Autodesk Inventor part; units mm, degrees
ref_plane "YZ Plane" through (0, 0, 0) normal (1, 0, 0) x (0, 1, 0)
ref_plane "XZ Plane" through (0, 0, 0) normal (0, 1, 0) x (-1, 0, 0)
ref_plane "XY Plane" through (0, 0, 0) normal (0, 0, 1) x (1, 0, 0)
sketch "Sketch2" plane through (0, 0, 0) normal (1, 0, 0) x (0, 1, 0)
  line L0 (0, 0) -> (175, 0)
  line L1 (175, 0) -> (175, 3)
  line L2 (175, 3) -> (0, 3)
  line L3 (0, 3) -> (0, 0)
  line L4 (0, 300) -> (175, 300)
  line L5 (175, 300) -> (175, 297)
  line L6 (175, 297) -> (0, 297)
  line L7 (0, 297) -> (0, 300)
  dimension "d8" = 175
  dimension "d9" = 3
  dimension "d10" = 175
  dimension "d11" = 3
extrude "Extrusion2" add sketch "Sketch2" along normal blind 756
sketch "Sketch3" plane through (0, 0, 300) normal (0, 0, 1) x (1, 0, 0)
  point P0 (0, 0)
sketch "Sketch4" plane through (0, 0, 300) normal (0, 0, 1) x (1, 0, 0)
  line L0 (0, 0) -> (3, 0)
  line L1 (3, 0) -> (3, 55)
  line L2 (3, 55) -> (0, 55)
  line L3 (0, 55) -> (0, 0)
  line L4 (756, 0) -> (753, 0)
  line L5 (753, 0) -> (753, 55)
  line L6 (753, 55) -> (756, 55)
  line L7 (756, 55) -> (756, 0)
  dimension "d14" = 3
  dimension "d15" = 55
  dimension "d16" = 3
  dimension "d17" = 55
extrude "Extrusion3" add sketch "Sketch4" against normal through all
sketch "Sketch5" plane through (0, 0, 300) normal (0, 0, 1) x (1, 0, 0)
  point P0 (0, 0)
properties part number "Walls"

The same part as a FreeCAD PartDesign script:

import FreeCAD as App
import Part
import Sketcher
Q = App.Units.Quantity


def add_polygon(sketch, points):
    """Adds a closed chain of lines whose ends are joined by coincident constraints."""
    first, n = sketch.GeometryCount, len(points)
    for a, b in zip(points, points[1:] + points[:1]):
        sketch.addGeometry(Part.LineSegment(App.Vector(*a, 0), App.Vector(*b, 0)), False)
    for i in range(n):
        sketch.addConstraint(Sketcher.Constraint("Coincident", first + i, 2, first + (i + 1) % n, 1))

doc = App.newDocument("Part")
body = doc.addObject("PartDesign::Body", "Body")
body.AllowCompound = True

sketch1 = body.newObject("Sketcher::SketchObject", "Sketch")
sketch1.AttachmentSupport = (doc.getObject("YZ_Plane"), [""])
sketch1.MapMode = "FlatFace"
add_polygon(sketch1, [(0, 3), (0, 0), (175, 0), (175, 3)])
add_polygon(sketch1, [(175, 300), (0, 300), (0, 297), (175, 297)])
sketch1.addConstraint([
    Sketcher.Constraint("Vertical", 0),
    Sketcher.Constraint("Horizontal", 1),
    Sketcher.Constraint("Vertical", 2),
    Sketcher.Constraint("Horizontal", 3),
    Sketcher.Constraint("Horizontal", 4),
    Sketcher.Constraint("Vertical", 5),
    Sketcher.Constraint("Horizontal", 6),
    Sketcher.Constraint("Vertical", 7),
    Sketcher.Constraint("Coincident", 0, 2, -1, 1),
    Sketcher.Constraint("PointOnObject", 4, 2, -2),
    Sketcher.Constraint("Vertical", 2, 2, 6, 2),
    Sketcher.Constraint("Equal", 2, 5),
    Sketcher.Constraint("DistanceX", 1, 1, 1, 2, Q("175 mm")),
    Sketcher.Constraint("DistanceY", 0, 2, 0, 1, Q("3 mm")),
    Sketcher.Constraint("DistanceY", -1, 1, 4, 2, Q("300 mm")),
])
pad1 = body.newObject("PartDesign::Pad", "Pad")
pad1.Profile = sketch1
pad1.Length = 756

sketch2 = body.newObject("Sketcher::SketchObject", "Sketch001")
sketch2.AttachmentSupport = (doc.getObject("XY_Plane"), [""])
sketch2.MapMode = "FlatFace"
sketch2.AttachmentOffset = App.Placement(App.Vector(0, 0, 300), App.Rotation())
add_polygon(sketch2, [(0, 55), (0, 0), (3, 0), (3, 55)])
add_polygon(sketch2, [(753, 0), (756, 0), (756, 55), (753, 55)])
sketch2.addConstraint([
    Sketcher.Constraint("Vertical", 0),
    Sketcher.Constraint("Horizontal", 1),
    Sketcher.Constraint("Vertical", 2),
    Sketcher.Constraint("Horizontal", 3),
    Sketcher.Constraint("Horizontal", 4),
    Sketcher.Constraint("Vertical", 5),
    Sketcher.Constraint("Horizontal", 6),
    Sketcher.Constraint("Vertical", 7),
    Sketcher.Constraint("Coincident", 0, 2, -1, 1),
    Sketcher.Constraint("PointOnObject", 4, 2, -1),
    Sketcher.Constraint("Horizontal", 3, 2, 5, 2),
    Sketcher.Constraint("Equal", 3, 4),
    Sketcher.Constraint("DistanceX", 1, 1, 1, 2, Q("3 mm")),
    Sketcher.Constraint("DistanceY", 0, 2, 0, 1, Q("55 mm")),
    Sketcher.Constraint("DistanceX", -1, 1, 4, 2, Q("756 mm")),
])
pad2 = body.newObject("PartDesign::Pad", "Pad001")
pad2.Profile = sketch2
pad2.Type = "UpToLast"
pad2.Reversed = True

doc.recompute()
